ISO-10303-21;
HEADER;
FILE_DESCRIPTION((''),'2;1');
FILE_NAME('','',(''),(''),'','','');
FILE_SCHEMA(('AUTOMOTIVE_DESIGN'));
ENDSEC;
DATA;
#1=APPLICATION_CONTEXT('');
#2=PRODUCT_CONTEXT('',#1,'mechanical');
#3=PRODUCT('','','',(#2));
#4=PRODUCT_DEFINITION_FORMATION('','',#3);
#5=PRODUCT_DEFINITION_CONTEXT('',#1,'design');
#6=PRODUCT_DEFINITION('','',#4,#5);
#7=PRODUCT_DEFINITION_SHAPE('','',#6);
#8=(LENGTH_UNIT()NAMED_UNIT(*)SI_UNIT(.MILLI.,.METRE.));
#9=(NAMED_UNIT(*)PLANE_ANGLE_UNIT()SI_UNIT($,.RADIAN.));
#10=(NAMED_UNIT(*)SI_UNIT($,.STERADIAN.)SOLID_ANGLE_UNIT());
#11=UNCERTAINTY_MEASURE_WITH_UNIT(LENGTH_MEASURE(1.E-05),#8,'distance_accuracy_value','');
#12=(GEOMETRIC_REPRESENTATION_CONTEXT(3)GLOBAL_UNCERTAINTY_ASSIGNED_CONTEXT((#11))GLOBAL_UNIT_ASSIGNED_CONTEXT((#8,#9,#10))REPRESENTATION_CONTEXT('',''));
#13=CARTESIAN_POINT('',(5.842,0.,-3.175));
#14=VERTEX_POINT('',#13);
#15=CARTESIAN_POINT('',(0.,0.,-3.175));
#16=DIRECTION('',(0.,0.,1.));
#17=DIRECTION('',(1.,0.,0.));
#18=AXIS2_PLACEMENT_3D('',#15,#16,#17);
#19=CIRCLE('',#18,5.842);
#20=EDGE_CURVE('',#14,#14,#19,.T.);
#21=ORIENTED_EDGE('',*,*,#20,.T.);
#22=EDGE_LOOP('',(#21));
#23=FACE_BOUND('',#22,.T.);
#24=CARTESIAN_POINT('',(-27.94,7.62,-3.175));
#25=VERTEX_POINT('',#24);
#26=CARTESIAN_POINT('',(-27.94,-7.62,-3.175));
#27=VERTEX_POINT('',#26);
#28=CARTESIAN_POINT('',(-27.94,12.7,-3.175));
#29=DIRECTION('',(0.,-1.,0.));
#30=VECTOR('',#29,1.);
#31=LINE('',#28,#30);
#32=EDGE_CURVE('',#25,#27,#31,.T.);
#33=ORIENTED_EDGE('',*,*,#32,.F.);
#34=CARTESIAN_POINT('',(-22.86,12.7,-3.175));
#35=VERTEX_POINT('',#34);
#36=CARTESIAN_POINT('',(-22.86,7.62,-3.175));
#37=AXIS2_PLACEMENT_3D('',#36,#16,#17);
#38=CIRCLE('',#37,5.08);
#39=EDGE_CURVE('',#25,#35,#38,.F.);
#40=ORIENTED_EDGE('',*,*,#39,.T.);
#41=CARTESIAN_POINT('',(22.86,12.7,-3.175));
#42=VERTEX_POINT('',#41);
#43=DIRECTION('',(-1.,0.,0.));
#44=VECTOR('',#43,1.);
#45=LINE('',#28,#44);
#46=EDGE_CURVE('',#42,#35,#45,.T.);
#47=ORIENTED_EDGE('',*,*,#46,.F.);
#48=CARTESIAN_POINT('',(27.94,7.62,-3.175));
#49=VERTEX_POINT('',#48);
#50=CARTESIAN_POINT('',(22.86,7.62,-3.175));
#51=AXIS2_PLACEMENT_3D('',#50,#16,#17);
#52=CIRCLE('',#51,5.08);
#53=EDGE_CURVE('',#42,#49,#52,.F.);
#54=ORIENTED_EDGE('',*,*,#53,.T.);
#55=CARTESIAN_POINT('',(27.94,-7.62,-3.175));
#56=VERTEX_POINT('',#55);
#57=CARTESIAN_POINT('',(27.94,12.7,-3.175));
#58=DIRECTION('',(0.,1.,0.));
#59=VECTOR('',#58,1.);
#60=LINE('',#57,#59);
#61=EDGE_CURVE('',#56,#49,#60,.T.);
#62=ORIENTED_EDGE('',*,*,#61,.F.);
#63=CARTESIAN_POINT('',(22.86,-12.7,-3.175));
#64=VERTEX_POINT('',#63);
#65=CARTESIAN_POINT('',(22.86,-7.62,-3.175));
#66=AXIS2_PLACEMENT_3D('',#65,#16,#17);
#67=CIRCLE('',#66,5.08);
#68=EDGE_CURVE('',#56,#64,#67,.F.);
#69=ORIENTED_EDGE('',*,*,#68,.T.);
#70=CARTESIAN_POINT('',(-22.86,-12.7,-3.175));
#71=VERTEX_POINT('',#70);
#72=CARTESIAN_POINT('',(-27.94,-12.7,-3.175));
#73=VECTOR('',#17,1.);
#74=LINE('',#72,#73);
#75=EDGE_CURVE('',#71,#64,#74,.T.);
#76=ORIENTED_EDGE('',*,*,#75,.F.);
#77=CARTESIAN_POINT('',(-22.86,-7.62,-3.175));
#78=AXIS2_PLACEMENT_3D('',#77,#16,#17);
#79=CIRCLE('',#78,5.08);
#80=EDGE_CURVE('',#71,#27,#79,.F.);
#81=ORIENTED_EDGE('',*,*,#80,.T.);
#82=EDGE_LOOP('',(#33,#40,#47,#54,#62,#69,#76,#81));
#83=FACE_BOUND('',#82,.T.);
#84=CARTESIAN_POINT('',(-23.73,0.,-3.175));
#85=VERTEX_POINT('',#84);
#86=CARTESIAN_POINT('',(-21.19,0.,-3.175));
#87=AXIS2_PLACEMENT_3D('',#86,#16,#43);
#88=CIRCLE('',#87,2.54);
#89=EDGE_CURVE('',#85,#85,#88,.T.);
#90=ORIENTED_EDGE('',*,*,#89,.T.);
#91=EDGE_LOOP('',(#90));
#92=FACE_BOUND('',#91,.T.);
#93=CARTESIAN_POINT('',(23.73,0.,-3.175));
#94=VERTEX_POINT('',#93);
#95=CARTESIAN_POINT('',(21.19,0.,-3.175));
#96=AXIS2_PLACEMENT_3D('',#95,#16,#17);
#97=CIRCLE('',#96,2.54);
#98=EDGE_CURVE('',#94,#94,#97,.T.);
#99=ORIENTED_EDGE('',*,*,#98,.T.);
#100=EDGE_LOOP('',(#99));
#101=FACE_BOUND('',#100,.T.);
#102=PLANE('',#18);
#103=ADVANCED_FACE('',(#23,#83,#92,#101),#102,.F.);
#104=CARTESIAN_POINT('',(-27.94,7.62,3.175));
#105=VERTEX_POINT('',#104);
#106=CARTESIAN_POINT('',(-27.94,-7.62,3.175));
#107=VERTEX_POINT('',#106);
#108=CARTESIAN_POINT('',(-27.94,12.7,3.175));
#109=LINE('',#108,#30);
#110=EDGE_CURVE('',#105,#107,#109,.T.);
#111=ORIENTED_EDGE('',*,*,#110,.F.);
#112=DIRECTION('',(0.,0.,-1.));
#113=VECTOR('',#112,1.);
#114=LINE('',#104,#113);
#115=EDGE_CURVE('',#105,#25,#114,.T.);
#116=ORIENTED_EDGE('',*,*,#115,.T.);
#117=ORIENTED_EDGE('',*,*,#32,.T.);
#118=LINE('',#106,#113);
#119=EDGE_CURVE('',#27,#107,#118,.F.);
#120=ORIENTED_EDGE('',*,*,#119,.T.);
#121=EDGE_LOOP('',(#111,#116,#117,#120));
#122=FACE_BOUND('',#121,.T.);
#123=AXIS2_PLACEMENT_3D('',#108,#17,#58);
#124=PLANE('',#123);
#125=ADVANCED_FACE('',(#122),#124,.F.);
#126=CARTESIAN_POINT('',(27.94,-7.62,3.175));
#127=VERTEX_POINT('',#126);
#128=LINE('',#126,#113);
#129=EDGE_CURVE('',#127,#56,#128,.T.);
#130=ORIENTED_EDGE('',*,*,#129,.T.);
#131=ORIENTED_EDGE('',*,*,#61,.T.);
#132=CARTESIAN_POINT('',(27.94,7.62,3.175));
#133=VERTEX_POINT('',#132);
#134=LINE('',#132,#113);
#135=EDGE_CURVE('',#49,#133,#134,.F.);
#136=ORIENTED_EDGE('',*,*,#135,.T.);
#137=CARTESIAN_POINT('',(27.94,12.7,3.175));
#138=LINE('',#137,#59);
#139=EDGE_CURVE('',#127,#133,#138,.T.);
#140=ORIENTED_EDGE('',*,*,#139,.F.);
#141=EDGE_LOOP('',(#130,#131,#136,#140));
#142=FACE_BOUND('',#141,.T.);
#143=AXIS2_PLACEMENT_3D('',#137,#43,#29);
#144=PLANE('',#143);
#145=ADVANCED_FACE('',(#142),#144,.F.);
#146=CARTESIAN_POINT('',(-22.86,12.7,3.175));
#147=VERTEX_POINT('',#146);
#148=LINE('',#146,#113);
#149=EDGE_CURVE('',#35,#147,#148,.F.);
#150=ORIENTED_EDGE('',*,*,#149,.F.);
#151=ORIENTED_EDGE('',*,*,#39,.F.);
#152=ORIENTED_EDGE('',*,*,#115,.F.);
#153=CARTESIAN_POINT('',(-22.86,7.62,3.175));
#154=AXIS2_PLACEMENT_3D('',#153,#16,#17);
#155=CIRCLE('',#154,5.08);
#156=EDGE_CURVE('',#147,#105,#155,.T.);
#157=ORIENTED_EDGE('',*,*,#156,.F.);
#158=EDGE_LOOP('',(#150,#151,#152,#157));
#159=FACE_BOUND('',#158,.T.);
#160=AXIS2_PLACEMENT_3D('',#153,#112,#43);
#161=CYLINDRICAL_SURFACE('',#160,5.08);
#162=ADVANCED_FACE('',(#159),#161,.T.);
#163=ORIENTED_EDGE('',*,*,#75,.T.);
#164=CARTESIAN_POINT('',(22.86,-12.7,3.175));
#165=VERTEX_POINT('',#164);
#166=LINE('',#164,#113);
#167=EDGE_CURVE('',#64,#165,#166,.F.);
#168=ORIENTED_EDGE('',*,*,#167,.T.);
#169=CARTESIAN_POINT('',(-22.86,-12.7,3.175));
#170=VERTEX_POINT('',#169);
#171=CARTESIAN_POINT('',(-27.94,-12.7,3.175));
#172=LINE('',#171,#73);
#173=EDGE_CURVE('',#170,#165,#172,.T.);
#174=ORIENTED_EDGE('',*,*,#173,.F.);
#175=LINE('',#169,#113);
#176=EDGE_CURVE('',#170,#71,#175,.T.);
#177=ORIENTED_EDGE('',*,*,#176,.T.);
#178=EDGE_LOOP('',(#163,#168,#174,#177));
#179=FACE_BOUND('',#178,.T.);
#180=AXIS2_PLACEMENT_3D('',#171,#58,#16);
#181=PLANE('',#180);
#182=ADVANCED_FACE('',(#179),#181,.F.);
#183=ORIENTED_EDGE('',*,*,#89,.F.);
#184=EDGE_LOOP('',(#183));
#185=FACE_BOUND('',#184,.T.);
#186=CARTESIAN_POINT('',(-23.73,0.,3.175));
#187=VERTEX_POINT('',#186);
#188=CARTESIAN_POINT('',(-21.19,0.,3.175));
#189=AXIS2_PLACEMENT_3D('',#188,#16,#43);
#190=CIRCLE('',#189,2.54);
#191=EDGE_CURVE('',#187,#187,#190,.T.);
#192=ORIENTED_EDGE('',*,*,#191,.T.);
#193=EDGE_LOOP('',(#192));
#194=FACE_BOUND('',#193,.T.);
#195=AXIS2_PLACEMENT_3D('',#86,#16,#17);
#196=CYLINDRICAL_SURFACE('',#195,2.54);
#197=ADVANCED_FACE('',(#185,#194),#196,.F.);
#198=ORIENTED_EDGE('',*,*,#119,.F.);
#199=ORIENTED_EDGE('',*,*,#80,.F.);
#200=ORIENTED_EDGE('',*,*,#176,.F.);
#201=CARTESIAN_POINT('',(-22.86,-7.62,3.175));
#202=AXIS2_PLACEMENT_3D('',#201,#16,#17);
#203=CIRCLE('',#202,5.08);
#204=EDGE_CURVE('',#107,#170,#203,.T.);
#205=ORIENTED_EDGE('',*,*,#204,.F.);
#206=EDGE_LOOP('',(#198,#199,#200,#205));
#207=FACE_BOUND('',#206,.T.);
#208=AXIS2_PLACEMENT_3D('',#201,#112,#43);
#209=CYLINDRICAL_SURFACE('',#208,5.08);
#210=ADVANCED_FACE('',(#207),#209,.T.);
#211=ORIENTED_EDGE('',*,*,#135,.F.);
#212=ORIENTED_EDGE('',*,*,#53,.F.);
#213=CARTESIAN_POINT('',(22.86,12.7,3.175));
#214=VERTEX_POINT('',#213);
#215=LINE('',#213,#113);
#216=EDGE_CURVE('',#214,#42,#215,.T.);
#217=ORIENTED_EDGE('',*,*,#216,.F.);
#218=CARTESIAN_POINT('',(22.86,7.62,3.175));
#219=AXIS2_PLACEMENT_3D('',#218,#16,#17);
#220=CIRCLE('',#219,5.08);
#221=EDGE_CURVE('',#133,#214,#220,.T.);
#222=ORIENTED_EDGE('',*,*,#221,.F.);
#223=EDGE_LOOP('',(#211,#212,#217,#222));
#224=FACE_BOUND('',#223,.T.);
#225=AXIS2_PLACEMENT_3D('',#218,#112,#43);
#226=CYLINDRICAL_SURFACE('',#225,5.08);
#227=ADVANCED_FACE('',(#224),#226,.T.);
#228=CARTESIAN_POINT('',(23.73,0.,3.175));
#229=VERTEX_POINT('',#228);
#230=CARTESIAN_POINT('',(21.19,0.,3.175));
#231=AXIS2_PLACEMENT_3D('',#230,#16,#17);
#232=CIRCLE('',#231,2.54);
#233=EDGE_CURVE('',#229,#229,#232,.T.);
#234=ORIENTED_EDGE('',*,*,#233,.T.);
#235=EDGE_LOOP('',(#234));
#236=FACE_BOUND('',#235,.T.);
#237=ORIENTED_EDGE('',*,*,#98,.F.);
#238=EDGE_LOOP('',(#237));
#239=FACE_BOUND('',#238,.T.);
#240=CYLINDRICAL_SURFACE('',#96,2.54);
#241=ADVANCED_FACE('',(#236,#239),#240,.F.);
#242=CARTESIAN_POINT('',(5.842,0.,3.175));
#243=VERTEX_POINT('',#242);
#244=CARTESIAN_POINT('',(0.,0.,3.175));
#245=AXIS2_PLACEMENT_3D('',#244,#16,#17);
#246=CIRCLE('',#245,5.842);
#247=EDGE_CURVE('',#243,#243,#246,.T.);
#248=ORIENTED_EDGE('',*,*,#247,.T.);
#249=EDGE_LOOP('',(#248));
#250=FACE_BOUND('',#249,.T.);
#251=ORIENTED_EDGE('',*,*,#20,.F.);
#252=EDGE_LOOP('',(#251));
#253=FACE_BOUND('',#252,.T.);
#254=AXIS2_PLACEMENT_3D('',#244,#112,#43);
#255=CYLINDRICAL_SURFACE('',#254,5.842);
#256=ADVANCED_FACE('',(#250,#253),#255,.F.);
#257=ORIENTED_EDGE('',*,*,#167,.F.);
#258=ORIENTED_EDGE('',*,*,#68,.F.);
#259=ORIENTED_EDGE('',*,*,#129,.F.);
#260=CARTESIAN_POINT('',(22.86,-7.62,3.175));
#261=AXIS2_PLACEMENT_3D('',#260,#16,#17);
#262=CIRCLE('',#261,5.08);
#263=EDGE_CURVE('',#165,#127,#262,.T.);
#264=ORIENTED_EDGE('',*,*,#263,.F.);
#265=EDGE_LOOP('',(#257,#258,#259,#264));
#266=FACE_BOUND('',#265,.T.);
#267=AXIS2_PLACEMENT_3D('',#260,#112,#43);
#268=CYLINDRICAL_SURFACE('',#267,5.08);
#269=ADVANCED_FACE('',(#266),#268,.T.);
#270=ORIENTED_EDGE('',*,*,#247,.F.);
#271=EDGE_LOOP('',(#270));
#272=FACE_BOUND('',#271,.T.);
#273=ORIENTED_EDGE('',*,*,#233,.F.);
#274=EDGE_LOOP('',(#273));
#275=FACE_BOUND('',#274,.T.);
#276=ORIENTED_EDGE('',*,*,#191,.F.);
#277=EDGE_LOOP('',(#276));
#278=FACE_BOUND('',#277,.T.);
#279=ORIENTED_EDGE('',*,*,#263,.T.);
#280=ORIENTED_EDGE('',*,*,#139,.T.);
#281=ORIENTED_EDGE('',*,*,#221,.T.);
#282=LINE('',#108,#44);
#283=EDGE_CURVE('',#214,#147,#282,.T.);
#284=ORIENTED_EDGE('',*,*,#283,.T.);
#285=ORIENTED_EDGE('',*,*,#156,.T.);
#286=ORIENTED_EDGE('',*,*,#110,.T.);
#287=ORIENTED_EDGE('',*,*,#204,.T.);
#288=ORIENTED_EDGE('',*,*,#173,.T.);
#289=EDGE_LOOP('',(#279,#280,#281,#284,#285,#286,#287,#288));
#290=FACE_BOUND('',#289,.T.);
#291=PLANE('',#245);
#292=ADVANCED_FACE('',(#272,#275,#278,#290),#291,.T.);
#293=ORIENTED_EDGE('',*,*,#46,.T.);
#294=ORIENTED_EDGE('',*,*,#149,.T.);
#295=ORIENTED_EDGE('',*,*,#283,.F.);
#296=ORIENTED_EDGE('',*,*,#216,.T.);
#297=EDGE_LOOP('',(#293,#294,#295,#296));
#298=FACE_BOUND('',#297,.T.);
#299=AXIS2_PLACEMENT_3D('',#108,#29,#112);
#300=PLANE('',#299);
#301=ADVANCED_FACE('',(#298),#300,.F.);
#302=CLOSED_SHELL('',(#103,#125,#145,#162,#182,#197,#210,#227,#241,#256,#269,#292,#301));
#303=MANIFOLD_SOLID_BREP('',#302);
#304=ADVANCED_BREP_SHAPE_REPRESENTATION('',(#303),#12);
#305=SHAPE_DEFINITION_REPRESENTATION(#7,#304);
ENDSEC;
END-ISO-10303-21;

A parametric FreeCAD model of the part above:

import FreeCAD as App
import Part
import Sketcher
from FreeCAD import Vector
Q = App.Units.Quantity


def edges_at(feature, points):
    """Names of the edges that pass closest to the given points."""
    edges = feature.Shape.Edges
    near = lambda p: min(range(len(edges)), key=lambda i: edges[i].distToShape(Part.Vertex(*p))[0])
    return sorted({f"Edge{near(p) + 1}" for p in points})


def add_polygon(sketch, points):
    """Adds a closed chain of lines whose ends are joined by coincident constraints."""
    first, n = sketch.GeometryCount, len(points)
    for a, b in zip(points, points[1:] + points[:1]):
        sketch.addGeometry(Part.LineSegment(App.Vector(*a, 0), App.Vector(*b, 0)), False)
    for i in range(n):
        sketch.addConstraint(Sketcher.Constraint("Coincident", first + i, 2, first + (i + 1) % n, 1))

doc = App.newDocument("Part")
params = doc.addObject("Spreadsheet::Sheet", "Params")
for row, (alias, value) in enumerate([
    ("sketch1_diameter", "0.46 in"),
    ("sketch1_height", "1 in"),
    ("sketch1_width", "2.2 in"),
    ("pad1_length", "0.25 in"),
    ("sketch2_diameter", "0.2 in"),
    ("fillet_radius", "0.2 in"),
], start=1):
    params.set(f"A{row}", alias)
    params.set(f"B{row}", "=" + value)
    params.setAlias(f"B{row}", alias)

body = doc.addObject("PartDesign::Body", "Body")

sketch1 = body.newObject("Sketcher::SketchObject", "Sketch")
sketch1.AttachmentSupport = (doc.getObject("XY_Plane"), [""])
sketch1.MapMode = "FlatFace"
add_polygon(sketch1, [(-27.94, 12.7), (-27.94, -12.7), (27.94, -12.7), (27.94, 12.7)])
sketch1.addGeometry(Part.Circle(Vector(0, 0, 0), Vector(0, 0, 1), 5.842), False)
sketch1.addConstraint(Sketcher.Constraint("Vertical", 0))
sketch1.addConstraint(Sketcher.Constraint("Horizontal", 1))
sketch1.addConstraint(Sketcher.Constraint("Vertical", 2))
sketch1.addConstraint(Sketcher.Constraint("Horizontal", 3))
sketch1.addConstraint(Sketcher.Constraint("Coincident", 4, 3, -1, 1))
sketch1.addConstraint(Sketcher.Constraint("Symmetric", 0, 2, 2, 2, -1, 1))
sketch1.addConstraint(Sketcher.Constraint("Diameter", 4, Q("0.46 in")))
sketch1.addConstraint(Sketcher.Constraint("DistanceY", 0, 2, 0, 1, Q("1 in")))
sketch1.addConstraint(Sketcher.Constraint("DistanceX", 1, 1, 1, 2, Q("2.2 in")))
sketch1.setExpression("Constraints[10]", "Params.sketch1_diameter")
sketch1.setExpression("Constraints[11]", "Params.sketch1_height")
sketch1.setExpression("Constraints[12]", "Params.sketch1_width")
pad1 = body.newObject("PartDesign::Pad", "Pad")
pad1.Profile = sketch1
pad1.setExpression("Length", "Params.pad1_length")
pad1.Midplane = True

sketch2 = body.newObject("Sketcher::SketchObject", "Sketch001")
sketch2.AttachmentSupport = (doc.getObject("XY_Plane"), [""])
sketch2.MapMode = "FlatFace"
sketch2.AttachmentOffset = App.Placement(Vector(0, 0, 0.125 * 25.4), App.Rotation())
sketch2.addGeometry(Part.Circle(Vector(21.19, 0, 0), Vector(0, 0, 1), 2.54), False)
sketch2.addGeometry(Part.Circle(Vector(-21.19, 0, 0), Vector(0, 0, 1), 2.54), False)
sketch2.addConstraint(Sketcher.Constraint("Equal", 0, 1))
sketch2.addConstraint(Sketcher.Constraint("Symmetric", 0, 3, 1, 3, -1, 1))
sketch2.addConstraint(Sketcher.Constraint("PointOnObject", 0, 3, -1))
sketch2.addConstraint(Sketcher.Constraint("Diameter", 0, Q("0.2 in")))
sketch2.addConstraint(Sketcher.Constraint("DistanceX", -1, 1, 0, 3, Q("21.19 mm")))
sketch2.setExpression("Constraints[3]", "Params.sketch2_diameter")
pocket1 = body.newObject("PartDesign::Pocket", "Pocket")
pocket1.Profile = sketch2
pocket1.Type = "ThroughAll"
doc.recompute()

fillet = body.newObject("PartDesign::Fillet", "Fillet")
fillet.Base = (pocket1, edges_at(pocket1, [
    (27.94, -12.7, 0),
    (-27.94, -12.7, 0),
    (-27.94, 12.7, 0),
    (27.94, 12.7, 0),
]))
fillet.setExpression("Radius", "Params.fillet_radius")

doc.recompute()
